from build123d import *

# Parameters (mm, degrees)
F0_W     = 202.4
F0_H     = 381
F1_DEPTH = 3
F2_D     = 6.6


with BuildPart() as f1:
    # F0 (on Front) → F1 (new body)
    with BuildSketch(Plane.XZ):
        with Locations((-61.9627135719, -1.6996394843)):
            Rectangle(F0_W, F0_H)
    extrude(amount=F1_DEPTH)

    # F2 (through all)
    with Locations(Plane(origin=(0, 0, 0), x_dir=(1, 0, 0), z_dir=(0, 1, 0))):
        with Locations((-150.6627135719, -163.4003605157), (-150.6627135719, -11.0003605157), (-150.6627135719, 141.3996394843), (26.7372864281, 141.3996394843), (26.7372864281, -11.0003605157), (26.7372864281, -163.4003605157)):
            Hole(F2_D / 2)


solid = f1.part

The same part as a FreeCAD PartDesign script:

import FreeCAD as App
import Part
import Sketcher

V = App.Vector


def add_polygon(sketch, points):
    """Adds a closed chain of lines whose ends are joined by coincident constraints."""
    first, n = sketch.GeometryCount, len(points)
    for a, b in zip(points, points[1:] + points[:1]):
        sketch.addGeometry(Part.LineSegment(App.Vector(*a, 0), App.Vector(*b, 0)), False)
    for i in range(n):
        sketch.addConstraint(Sketcher.Constraint("Coincident", first + i, 2, first + (i + 1) % n, 1))

doc = App.newDocument("Part")
body = doc.addObject("PartDesign::Body", "Body")

# Sketch on XZ plane
sketch1 = body.newObject("Sketcher::SketchObject", "Sketch")
sketch1.AttachmentSupport = (doc.getObject("XZ_Plane"), [""])
sketch1.MapMode = "FlatFace"
add_polygon(sketch1, [(-163, 189), (-163, -192), (39, -192), (39, 189)])  # lines 0-3
sketch1.addConstraint([
    Sketcher.Constraint("Vertical", 0),
    Sketcher.Constraint("Horizontal", 1),
    Sketcher.Constraint("Vertical", 2),
    Sketcher.Constraint("Horizontal", 3),
    Sketcher.Constraint("DistanceY", 0, 2, 0, 1, 381.0),
    Sketcher.Constraint("DistanceX", 1, 1, 1, 2, 202.4),
    Sketcher.Constraint("DistanceY", 0, 2, -1, 1, 192.199639),
    Sketcher.Constraint("DistanceX", 0, 2, -1, 1, 163.162714),
])
pad1 = body.newObject("PartDesign::Pad", "Pad")
pad1.Profile = sketch1
pad1.Length = 3

# Sketch on XZ plane
sketch2 = body.newObject("Sketcher::SketchObject", "Sketch001")
sketch2.AttachmentSupport = (doc.getObject("XZ_Plane"), [""])
sketch2.MapMode = "FlatFace"
sketch2.addGeometry([
    Part.Circle(V(-150.7, 163.4, 0), V(0, 0, 1), 3.3),  # 0
    Part.Circle(V(-150.7, 11, 0), V(0, 0, 1), 3.3),  # 1
    Part.Circle(V(-150.7, -141.4, 0), V(0, 0, 1), 3.3),  # 2
    Part.Circle(V(26.7, -141.4, 0), V(0, 0, 1), 3.3),  # 3
    Part.Circle(V(26.7, 11, 0), V(0, 0, 1), 3.3),  # 4
    Part.Circle(V(26.7, 163.4, 0), V(0, 0, 1), 3.3),  # 5
], False)
sketch2.addConstraint([
    Sketcher.Constraint("Equal", 0, 1),
    Sketcher.Constraint("Equal", 1, 2),
    Sketcher.Constraint("Equal", 2, 3),
    Sketcher.Constraint("Equal", 3, 4),
    Sketcher.Constraint("Equal", 4, 5),
    Sketcher.Constraint("Horizontal", 2, 3, 3, 3),
    Sketcher.Constraint("Horizontal", 1, 3, 4, 3),
    Sketcher.Constraint("Horizontal", 0, 3, 5, 3),
    Sketcher.Constraint("Vertical", 0, 3, 1, 3),
    Sketcher.Constraint("Vertical", 1, 3, 2, 3),
    Sketcher.Constraint("Vertical", 3, 3, 4, 3),
    Sketcher.Constraint("Vertical", 4, 3, 5, 3),
    Sketcher.Constraint("Diameter", 0, 6.6),
    Sketcher.Constraint("DistanceY", 1, 3, 0, 3, 152.4),
    Sketcher.Constraint("DistanceY", 2, 3, 1, 3, 152.4),
    Sketcher.Constraint("DistanceX", 2, 3, 3, 3, 177.4),
    Sketcher.Constraint("DistanceY", -1, 1, 0, 3, 163.400361),
    Sketcher.Constraint("DistanceX", 0, 3, -1, 1, 150.662714),
])
doc.recompute()
hole = body.newObject("PartDesign::Hole", "Hole")
hole.Profile = sketch2
hole.ThreadType = "None"
hole.Diameter = 6.6
hole.DepthType = "ThroughAll"
hole.Reversed = True

doc.recompute()
